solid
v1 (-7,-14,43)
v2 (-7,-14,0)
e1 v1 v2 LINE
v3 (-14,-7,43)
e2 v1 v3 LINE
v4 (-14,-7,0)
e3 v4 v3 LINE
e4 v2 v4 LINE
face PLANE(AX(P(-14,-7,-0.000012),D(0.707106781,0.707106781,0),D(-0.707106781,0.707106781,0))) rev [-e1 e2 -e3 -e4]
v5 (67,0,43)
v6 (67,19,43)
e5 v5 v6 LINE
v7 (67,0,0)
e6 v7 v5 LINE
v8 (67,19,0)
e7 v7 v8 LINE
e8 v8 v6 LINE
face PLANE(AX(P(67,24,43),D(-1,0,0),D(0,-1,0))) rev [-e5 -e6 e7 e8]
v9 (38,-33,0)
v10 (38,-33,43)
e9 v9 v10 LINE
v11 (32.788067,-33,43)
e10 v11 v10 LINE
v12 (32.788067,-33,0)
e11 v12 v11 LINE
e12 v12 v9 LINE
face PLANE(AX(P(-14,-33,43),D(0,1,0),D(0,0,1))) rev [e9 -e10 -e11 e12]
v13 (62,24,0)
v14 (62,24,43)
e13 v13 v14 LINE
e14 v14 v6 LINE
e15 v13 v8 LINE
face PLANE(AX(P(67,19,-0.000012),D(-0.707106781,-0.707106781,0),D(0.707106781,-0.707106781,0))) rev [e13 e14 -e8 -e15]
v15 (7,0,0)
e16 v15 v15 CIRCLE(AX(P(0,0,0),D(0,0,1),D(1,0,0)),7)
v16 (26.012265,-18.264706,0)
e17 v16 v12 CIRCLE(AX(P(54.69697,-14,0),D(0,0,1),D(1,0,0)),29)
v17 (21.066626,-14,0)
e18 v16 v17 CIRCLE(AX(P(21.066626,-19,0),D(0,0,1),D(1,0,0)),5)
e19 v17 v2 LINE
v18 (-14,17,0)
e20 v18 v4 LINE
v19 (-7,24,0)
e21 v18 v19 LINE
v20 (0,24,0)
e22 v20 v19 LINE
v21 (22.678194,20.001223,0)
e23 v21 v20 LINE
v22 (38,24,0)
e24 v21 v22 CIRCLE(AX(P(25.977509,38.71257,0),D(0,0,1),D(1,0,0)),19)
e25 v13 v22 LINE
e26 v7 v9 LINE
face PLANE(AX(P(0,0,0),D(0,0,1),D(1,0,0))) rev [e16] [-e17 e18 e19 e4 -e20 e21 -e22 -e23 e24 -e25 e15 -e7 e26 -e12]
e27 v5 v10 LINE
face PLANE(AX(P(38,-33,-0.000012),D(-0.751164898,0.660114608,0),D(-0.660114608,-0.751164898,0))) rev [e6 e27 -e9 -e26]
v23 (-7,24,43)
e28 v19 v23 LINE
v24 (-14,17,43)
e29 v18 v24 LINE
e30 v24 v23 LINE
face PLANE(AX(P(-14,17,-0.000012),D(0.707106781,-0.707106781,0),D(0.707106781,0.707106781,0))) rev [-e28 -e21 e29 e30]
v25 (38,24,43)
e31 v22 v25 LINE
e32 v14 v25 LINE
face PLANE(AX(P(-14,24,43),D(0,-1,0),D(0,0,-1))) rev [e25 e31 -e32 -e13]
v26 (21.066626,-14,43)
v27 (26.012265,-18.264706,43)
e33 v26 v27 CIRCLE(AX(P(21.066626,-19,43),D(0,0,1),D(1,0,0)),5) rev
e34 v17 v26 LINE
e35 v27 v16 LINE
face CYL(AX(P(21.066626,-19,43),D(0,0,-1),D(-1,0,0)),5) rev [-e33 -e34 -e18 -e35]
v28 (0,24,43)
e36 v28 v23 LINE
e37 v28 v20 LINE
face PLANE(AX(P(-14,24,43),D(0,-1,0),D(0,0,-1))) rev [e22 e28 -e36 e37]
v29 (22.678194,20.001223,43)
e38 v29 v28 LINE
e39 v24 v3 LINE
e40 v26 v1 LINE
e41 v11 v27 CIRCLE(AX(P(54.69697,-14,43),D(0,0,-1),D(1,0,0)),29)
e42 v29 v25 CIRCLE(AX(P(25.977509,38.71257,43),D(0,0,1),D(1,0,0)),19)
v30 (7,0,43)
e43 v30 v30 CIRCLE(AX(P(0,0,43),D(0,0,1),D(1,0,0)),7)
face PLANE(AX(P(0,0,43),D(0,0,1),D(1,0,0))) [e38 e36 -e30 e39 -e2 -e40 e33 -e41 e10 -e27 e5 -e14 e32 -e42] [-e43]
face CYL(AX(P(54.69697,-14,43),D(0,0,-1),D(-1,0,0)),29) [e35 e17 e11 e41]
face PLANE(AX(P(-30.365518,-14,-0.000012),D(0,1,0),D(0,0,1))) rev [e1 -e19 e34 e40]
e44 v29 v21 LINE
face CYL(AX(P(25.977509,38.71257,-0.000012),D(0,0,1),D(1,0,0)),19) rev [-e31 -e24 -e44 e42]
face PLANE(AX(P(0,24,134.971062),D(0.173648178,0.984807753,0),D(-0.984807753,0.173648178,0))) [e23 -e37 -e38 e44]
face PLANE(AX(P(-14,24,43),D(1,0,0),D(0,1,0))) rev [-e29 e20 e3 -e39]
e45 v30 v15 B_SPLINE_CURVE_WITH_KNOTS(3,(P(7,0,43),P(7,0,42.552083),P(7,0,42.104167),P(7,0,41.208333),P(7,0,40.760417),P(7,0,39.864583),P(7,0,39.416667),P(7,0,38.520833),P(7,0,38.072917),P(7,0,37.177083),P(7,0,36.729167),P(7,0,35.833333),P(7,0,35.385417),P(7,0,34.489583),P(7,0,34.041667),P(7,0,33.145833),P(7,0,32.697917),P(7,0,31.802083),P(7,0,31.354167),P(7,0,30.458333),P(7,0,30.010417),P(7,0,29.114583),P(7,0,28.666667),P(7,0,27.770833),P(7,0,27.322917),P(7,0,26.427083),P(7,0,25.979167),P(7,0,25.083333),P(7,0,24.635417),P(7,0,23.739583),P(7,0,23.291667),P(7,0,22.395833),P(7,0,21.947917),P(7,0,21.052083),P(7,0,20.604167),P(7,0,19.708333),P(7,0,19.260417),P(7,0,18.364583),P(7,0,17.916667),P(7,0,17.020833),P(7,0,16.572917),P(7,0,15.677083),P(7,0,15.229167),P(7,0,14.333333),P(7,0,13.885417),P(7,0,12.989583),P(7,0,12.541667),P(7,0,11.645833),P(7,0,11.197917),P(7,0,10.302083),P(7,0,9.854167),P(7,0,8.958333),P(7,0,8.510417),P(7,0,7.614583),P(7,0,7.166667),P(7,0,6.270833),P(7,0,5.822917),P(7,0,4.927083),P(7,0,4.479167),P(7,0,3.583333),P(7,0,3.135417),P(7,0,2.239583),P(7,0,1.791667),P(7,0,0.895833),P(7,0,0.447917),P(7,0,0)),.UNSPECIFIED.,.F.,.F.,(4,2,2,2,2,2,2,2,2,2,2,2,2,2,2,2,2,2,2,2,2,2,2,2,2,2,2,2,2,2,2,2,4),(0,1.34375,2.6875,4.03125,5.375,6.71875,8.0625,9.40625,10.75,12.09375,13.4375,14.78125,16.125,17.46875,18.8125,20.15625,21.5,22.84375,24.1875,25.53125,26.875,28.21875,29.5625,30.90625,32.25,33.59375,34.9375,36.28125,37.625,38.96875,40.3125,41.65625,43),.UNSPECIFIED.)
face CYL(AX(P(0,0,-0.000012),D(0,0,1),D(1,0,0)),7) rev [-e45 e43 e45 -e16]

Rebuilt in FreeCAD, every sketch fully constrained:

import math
import FreeCAD as App
import Part
import Sketcher

V = App.Vector
Q = App.Units.Quantity


def edges_at(feature, points):
    """Names of the edges that pass closest to the given points."""
    edges = feature.Shape.Edges
    near = lambda p: min(range(len(edges)), key=lambda i: edges[i].distToShape(Part.Vertex(*p))[0])
    return sorted({f"Edge{near(p) + 1}" for p in points})


def add_polygon(sketch, points):
    """Adds a closed chain of lines whose ends are joined by coincident constraints."""
    first, n = sketch.GeometryCount, len(points)
    for a, b in zip(points, points[1:] + points[:1]):
        sketch.addGeometry(Part.LineSegment(App.Vector(*a, 0), App.Vector(*b, 0)), False)
    for i in range(n):
        sketch.addConstraint(Sketcher.Constraint("Coincident", first + i, 2, first + (i + 1) % n, 1))

doc = App.newDocument("Part")
body = doc.addObject("PartDesign::Body", "Body")

# Sketch on XY plane
sketch1 = body.newObject("Sketcher::SketchObject", "Sketch")
sketch1.AttachmentSupport = (doc.getObject("XY_Plane"), [""])
sketch1.MapMode = "FlatFace"
add_polygon(sketch1, [(-14, 24), (-14, -33), (67, -33), (67, 24)])  # lines 0-3
sketch1.addConstraint(Sketcher.Constraint("Vertical", 0))
sketch1.addConstraint(Sketcher.Constraint("Horizontal", 1))
sketch1.addConstraint(Sketcher.Constraint("Vertical", 2))
sketch1.addConstraint(Sketcher.Constraint("Horizontal", 3))
sketch1.addConstraint(Sketcher.Constraint("DistanceX", 1, 1, 1, 2, Q("81 mm")))
sketch1.addConstraint(Sketcher.Constraint("DistanceY", 0, 2, 0, 1, Q("57 mm")))
sketch1.addConstraint(Sketcher.Constraint("DistanceX", 0, 2, -1, 1, Q("14 mm")))
sketch1.addConstraint(Sketcher.Constraint("DistanceY", 0, 2, -1, 1, Q("33 mm")))
pad1 = body.newObject("PartDesign::Pad", "Pad")
pad1.Profile = sketch1
pad1.Length = 43

# Sketch on XY plane
sketch2 = body.newObject("Sketcher::SketchObject", "Sketch001")
sketch2.AttachmentSupport = (doc.getObject("XY_Plane"), [""])
sketch2.MapMode = "FlatFace"
add_polygon(sketch2, [(67, 0), (38, -33), (38, -46), (93, -46), (93, 0)])  # lines 0-4
sketch2.addConstraint(Sketcher.Constraint("Vertical", 1))
sketch2.addConstraint(Sketcher.Constraint("Horizontal", 2))
sketch2.addConstraint(Sketcher.Constraint("Vertical", 3))
sketch2.addConstraint(Sketcher.Constraint("Horizontal", 4))
sketch2.addConstraint(Sketcher.Constraint("PointOnObject", 3, 2, -1))
sketch2.addConstraint(Sketcher.Constraint("DistanceX", -1, 1, 0, 2, Q("38 mm")))
sketch2.addConstraint(Sketcher.Constraint("DistanceY", 0, 2, -1, 1, Q("33 mm")))
sketch2.addConstraint(Sketcher.Constraint("DistanceX", -1, 1, 4, 2, Q("67 mm")))
sketch2.addConstraint(Sketcher.Constraint("DistanceY", 1, 2, 1, 1, Q("13.247192 mm")))
sketch2.addConstraint(Sketcher.Constraint("DistanceX", 2, 1, 2, 2, Q("54.563073 mm")))
pocket1 = body.newObject("PartDesign::Pocket", "Pocket")
pocket1.Profile = sketch2
pocket1.Type = "ThroughAll"
pocket1.Midplane = True

# Sketch on XY plane
sketch3 = body.newObject("Sketcher::SketchObject", "Sketch002")
sketch3.AttachmentSupport = (doc.getObject("XY_Plane"), [""])
sketch3.MapMode = "FlatFace"
add_polygon(sketch3, [(62, 24), (67, 19), (76, 19), (76, 35), (62, 35)])  # lines 0-4
add_polygon(sketch3, [(-30, -14), (-30, -63), (26, -63), (26, -14)])  # lines 5-8
sketch3.addConstraint(Sketcher.Constraint("Horizontal", 1))
sketch3.addConstraint(Sketcher.Constraint("Vertical", 2))
sketch3.addConstraint(Sketcher.Constraint("Horizontal", 3))
sketch3.addConstraint(Sketcher.Constraint("Vertical", 4))
sketch3.addConstraint(Sketcher.Constraint("Vertical", 5))
sketch3.addConstraint(Sketcher.Constraint("Horizontal", 6))
sketch3.addConstraint(Sketcher.Constraint("Vertical", 7))
sketch3.addConstraint(Sketcher.Constraint("Horizontal", 8))
sketch3.addConstraint(Sketcher.Constraint("Angle", 0, Q("-45 deg")))
sketch3.addConstraint(Sketcher.Constraint("DistanceX", -1, 1, 0, 2, Q("67 mm")))
sketch3.addConstraint(Sketcher.Constraint("DistanceY", -1, 1, 0, 2, Q("19 mm")))
sketch3.addConstraint(Sketcher.Constraint("DistanceX", -1, 1, 3, 2, Q("62 mm")))
sketch3.addConstraint(Sketcher.Constraint("DistanceY", 7, 2, -1, 1, Q("14 mm")))
sketch3.addConstraint(Sketcher.Constraint("DistanceY", 5, 2, 5, 1, Q("49.15731 mm")))
sketch3.addConstraint(Sketcher.Constraint("DistanceX", 1, 1, 1, 2, Q("9.394077 mm")))
sketch3.addConstraint(Sketcher.Constraint("DistanceX", 6, 1, 6, 2, Q("56.062488 mm")))
sketch3.addConstraint(Sketcher.Constraint("DistanceY", 2, 1, 2, 2, Q("16.074007 mm")))
sketch3.addConstraint(Sketcher.Constraint("DistanceX", -1, 1, 6, 2, Q("25.69697 mm")))
pocket2 = body.newObject("PartDesign::Pocket", "Pocket001")
pocket2.Profile = sketch3
pocket2.Type = "ThroughAll"
pocket2.Midplane = True

# Sketch on XY plane
sketch4 = body.newObject("Sketcher::SketchObject", "Sketch003")
sketch4.AttachmentSupport = (doc.getObject("XY_Plane"), [""])
sketch4.MapMode = "FlatFace"
sketch4.addGeometry(Part.Circle(V(0, 0, 0), V(0, 0, 1), 7), False)  # 0
add_polygon(sketch4, [(-7, -14), (-26, 5), (-26, -26), (-7, -26)])  # lines 1-4
sketch4.addGeometry(Part.LineSegment(V(26, -14, 0), V(2, -60, 0)), False)  # 5
sketch4.addGeometry(Part.LineSegment(V(2, -60, 0), V(55, -43, 0)), False)  # 6
sketch4.addGeometry(Part.ArcOfCircle(Part.Circle(V(55, -14, 0), V(0, 0, 1), 29), math.radians(-180), math.radians(-90)), False)  # 7
sketch4.addConstraint(Sketcher.Constraint("Coincident", 5, 2, 6, 1))
sketch4.addConstraint(Sketcher.Constraint("Coincident", 6, 2, 7, 2))
sketch4.addConstraint(Sketcher.Constraint("Coincident", 7, 1, 5, 1))
sketch4.addConstraint(Sketcher.Constraint("Vertical", 2))
sketch4.addConstraint(Sketcher.Constraint("Horizontal", 3))
sketch4.addConstraint(Sketcher.Constraint("Vertical", 4))
sketch4.addConstraint(Sketcher.Constraint("Coincident", 0, 3, -1, 1))
sketch4.addConstraint(Sketcher.Constraint("Horizontal", 7, 3, 4, 2))
sketch4.addConstraint(Sketcher.Constraint("Horizontal", 4, 2, 7, 1))
sketch4.addConstraint(Sketcher.Constraint("Vertical", 7, 3, 6, 2))
sketch4.addConstraint(Sketcher.Constraint("Diameter", 0, Q("14 mm")))
sketch4.addConstraint(Sketcher.Constraint("Radius", 7, Q("29 mm")))
sketch4.addConstraint(Sketcher.Constraint("Angle", 1, Q("135 deg")))
sketch4.addConstraint(Sketcher.Constraint("DistanceY", 7, 3, -1, 1, Q("14 mm")))
sketch4.addConstraint(Sketcher.Constraint("DistanceX", 3, 2, -1, 1, Q("7 mm")))
sketch4.addConstraint(Sketcher.Constraint("DistanceY", 2, 2, 2, 1, Q("30.280298 mm")))
sketch4.addConstraint(Sketcher.Constraint("Distance", 5, Q("51.952501 mm")))
sketch4.addConstraint(Sketcher.Constraint("DistanceY", 4, 1, 4, 2, Q("11.581491 mm")))
sketch4.addConstraint(Sketcher.Constraint("DistanceX", -1, 1, 7, 3, Q("54.69697 mm")))
sketch4.addConstraint(Sketcher.Constraint("DistanceX", -1, 1, 5, 2, Q("1.830031 mm")))
pocket3 = body.newObject("PartDesign::Pocket", "Pocket002")
pocket3.Profile = sketch4
pocket3.Type = "ThroughAll"
pocket3.Midplane = True
doc.recompute()

fillet = body.newObject("PartDesign::Fillet", "Fillet")
fillet.Base = (pocket3, edges_at(pocket3, [(25.697, -14, 21.5)]))
fillet.Radius = 5

# Sketch on XY plane
sketch5 = body.newObject("Sketcher::SketchObject", "Sketch004")
sketch5.AttachmentSupport = (doc.getObject("XY_Plane"), [""])
sketch5.MapMode = "FlatFace"
add_polygon(sketch5, [(-14, 17), (-7, 24), (-7, 34), (-25, 34), (-25, 17)])  # lines 0-4
sketch5.addConstraint(Sketcher.Constraint("Vertical", 1))
sketch5.addConstraint(Sketcher.Constraint("Horizontal", 2))
sketch5.addConstraint(Sketcher.Constraint("Vertical", 3))
sketch5.addConstraint(Sketcher.Constraint("Horizontal", 4))
sketch5.addConstraint(Sketcher.Constraint("Angle", 0, Q("45 deg")))
sketch5.addConstraint(Sketcher.Constraint("DistanceX", 0, 2, -1, 1, Q("7 mm")))
sketch5.addConstraint(Sketcher.Constraint("DistanceY", -1, 1, 0, 2, Q("24 mm")))
sketch5.addConstraint(Sketcher.Constraint("DistanceY", -1, 1, 3, 2, Q("17 mm")))
sketch5.addConstraint(Sketcher.Constraint("DistanceX", 2, 2, 2, 1, Q("17.773302 mm")))
sketch5.addConstraint(Sketcher.Constraint("DistanceY", 1, 1, 1, 2, Q("9.910955 mm")))
pocket4 = body.newObject("PartDesign::Pocket", "Pocket003")
pocket4.Profile = sketch5
pocket4.Type = "ThroughAll"
pocket4.Midplane = True

# Sketch on XY plane
sketch6 = body.newObject("Sketcher::SketchObject", "Sketch005")
sketch6.AttachmentSupport = (doc.getObject("XY_Plane"), [""])
sketch6.MapMode = "FlatFace"
sketch6.addGeometry(Part.Circle(V(26, 39, 0), V(0, 0, 1), 19), False)
sketch6.addConstraint(Sketcher.Constraint("Diameter", 0, Q("38 mm")))
sketch6.addConstraint(Sketcher.Constraint("DistanceX", -1, 1, 0, 3, Q("25.977509 mm")))
sketch6.addConstraint(Sketcher.Constraint("DistanceY", -1, 1, 0, 3, Q("38.71257 mm")))
pocket5 = body.newObject("PartDesign::Pocket", "Pocket004")
pocket5.Profile = sketch6
pocket5.Type = "ThroughAll"
pocket5.Midplane = True

# Sketch on XY plane
sketch7 = body.newObject("Sketcher::SketchObject", "Sketch006")
sketch7.AttachmentSupport = (doc.getObject("XY_Plane"), [""])
sketch7.MapMode = "FlatFace"
sketch7.addGeometry(Part.LineSegment(V(14, 24, 0), V(0, 24, 0)), False)
sketch7.addGeometry(Part.LineSegment(V(0, 24, 0), V(23, 20, 0)), False)
sketch7.addGeometry(Part.ArcOfCircle(Part.Circle(V(26, 39, 0), V(0, 0, 1), 19), math.radians(-129), math.radians(-100)), False)
sketch7.addConstraint(Sketcher.Constraint("Coincident", 0, 2, 1, 1))
sketch7.addConstraint(Sketcher.Constraint("Tangent", 1, 2, 2, 2))
sketch7.addConstraint(Sketcher.Constraint("Coincident", 2, 1, 0, 1))
sketch7.addConstraint(Sketcher.Constraint("Horizontal", 0))
sketch7.addConstraint(Sketcher.Constraint("PointOnObject", 0, 2, -2))
sketch7.addConstraint(Sketcher.Constraint("Radius", 2, Q("19 mm")))
sketch7.addConstraint(Sketcher.Constraint("Angle", 1, Q("-10 deg")))
sketch7.addConstraint(Sketcher.Constraint("DistanceY", -1, 1, 0, 2, Q("24 mm")))
sketch7.addConstraint(Sketcher.Constraint("DistanceX", 0, 2, 0, 1, Q("13.955018 mm")))
pocket6 = body.newObject("PartDesign::Pocket", "Pocket005")
pocket6.Profile = sketch7
pocket6.Type = "ThroughAll"
pocket6.Midplane = True

doc.recompute()
